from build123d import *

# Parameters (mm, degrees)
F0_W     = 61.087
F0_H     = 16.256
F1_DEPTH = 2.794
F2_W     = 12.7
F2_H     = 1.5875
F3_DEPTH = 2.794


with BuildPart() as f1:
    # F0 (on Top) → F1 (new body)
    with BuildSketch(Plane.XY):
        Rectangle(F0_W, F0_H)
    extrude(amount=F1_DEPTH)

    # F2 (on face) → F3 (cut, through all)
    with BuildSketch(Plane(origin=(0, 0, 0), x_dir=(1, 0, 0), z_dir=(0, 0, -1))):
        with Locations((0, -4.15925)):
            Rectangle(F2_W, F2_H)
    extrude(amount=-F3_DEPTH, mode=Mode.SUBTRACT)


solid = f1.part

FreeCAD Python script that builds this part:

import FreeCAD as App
import Part
import Sketcher
from FreeCAD import Vector
Q = App.Units.Quantity

doc = App.newDocument("Part")
body = doc.addObject("PartDesign::Body", "Body")

# Sketch on XY plane
sketch1 = body.newObject("Sketcher::SketchObject", "Sketch")
sketch1.AttachmentSupport = (doc.getObject("XY_Plane"), [""])
sketch1.MapMode = "FlatFace"
sketch1.addGeometry([
    Part.LineSegment(Vector(-31, 8, 0), Vector(-31, -8, 0)),
    Part.LineSegment(Vector(-31, -8, 0), Vector(31, -8, 0)),
    Part.LineSegment(Vector(31, -8, 0), Vector(31, 8, 0)),
    Part.LineSegment(Vector(31, 8, 0), Vector(-31, 8, 0)),
], False)
sketch1.addConstraint([
    Sketcher.Constraint("Coincident", 0, 2, 1, 1),
    Sketcher.Constraint("Coincident", 1, 2, 2, 1),
    Sketcher.Constraint("Coincident", 2, 2, 3, 1),
    Sketcher.Constraint("Coincident", 3, 2, 0, 1),
    Sketcher.Constraint("Vertical", 0),
    Sketcher.Constraint("Horizontal", 1),
    Sketcher.Constraint("Vertical", 2),
    Sketcher.Constraint("Horizontal", 3),
    Sketcher.Constraint("Symmetric", 0, 2, 2, 2, -1, 1),
    Sketcher.Constraint("DistanceY", 0, 2, 0, 1, Q("0.64 in")),
    Sketcher.Constraint("DistanceX", 1, 1, 1, 2, Q("2.405 in")),
])
pad1 = body.newObject("PartDesign::Pad", "Pad")
pad1.Profile = sketch1
pad1.Length = Q("0.11 in")

# Sketch on XY plane
sketch2 = body.newObject("Sketcher::SketchObject", "Sketch001")
sketch2.AttachmentSupport = (doc.getObject("XY_Plane"), [""])
sketch2.MapMode = "FlatFace"
sketch2.addGeometry([
    Part.LineSegment(Vector(-6.3, 3.4, 0), Vector(-6.3, 5, 0)),
    Part.LineSegment(Vector(-6.3, 5, 0), Vector(6.3, 5, 0)),
    Part.LineSegment(Vector(6.3, 5, 0), Vector(6.3, 3.4, 0)),
    Part.LineSegment(Vector(6.3, 3.4, 0), Vector(-6.3, 3.4, 0)),
], False)
sketch2.addConstraint([
    Sketcher.Constraint("Coincident", 0, 2, 1, 1),
    Sketcher.Constraint("Coincident", 1, 2, 2, 1),
    Sketcher.Constraint("Coincident", 2, 2, 3, 1),
    Sketcher.Constraint("Coincident", 3, 2, 0, 1),
    Sketcher.Constraint("Vertical", 0),
    Sketcher.Constraint("Horizontal", 1),
    Sketcher.Constraint("Vertical", 2),
    Sketcher.Constraint("Horizontal", 3),
    Sketcher.Constraint("DistanceX", 1, 1, 1, 2, Q("0.5 in")),
    Sketcher.Constraint("DistanceY", 0, 1, 0, 2, Q("0.0625 in")),
    Sketcher.Constraint("DistanceX", 0, 2, -1, 1, Q("0.25 in")),
    Sketcher.Constraint("DistanceY", -1, 1, 0, 2, Q("0.195 in")),
])
pocket1 = body.newObject("PartDesign::Pocket", "Pocket")
pocket1.Profile = sketch2
pocket1.Type = "ThroughAll"
pocket1.Reversed = True

doc.recompute()
